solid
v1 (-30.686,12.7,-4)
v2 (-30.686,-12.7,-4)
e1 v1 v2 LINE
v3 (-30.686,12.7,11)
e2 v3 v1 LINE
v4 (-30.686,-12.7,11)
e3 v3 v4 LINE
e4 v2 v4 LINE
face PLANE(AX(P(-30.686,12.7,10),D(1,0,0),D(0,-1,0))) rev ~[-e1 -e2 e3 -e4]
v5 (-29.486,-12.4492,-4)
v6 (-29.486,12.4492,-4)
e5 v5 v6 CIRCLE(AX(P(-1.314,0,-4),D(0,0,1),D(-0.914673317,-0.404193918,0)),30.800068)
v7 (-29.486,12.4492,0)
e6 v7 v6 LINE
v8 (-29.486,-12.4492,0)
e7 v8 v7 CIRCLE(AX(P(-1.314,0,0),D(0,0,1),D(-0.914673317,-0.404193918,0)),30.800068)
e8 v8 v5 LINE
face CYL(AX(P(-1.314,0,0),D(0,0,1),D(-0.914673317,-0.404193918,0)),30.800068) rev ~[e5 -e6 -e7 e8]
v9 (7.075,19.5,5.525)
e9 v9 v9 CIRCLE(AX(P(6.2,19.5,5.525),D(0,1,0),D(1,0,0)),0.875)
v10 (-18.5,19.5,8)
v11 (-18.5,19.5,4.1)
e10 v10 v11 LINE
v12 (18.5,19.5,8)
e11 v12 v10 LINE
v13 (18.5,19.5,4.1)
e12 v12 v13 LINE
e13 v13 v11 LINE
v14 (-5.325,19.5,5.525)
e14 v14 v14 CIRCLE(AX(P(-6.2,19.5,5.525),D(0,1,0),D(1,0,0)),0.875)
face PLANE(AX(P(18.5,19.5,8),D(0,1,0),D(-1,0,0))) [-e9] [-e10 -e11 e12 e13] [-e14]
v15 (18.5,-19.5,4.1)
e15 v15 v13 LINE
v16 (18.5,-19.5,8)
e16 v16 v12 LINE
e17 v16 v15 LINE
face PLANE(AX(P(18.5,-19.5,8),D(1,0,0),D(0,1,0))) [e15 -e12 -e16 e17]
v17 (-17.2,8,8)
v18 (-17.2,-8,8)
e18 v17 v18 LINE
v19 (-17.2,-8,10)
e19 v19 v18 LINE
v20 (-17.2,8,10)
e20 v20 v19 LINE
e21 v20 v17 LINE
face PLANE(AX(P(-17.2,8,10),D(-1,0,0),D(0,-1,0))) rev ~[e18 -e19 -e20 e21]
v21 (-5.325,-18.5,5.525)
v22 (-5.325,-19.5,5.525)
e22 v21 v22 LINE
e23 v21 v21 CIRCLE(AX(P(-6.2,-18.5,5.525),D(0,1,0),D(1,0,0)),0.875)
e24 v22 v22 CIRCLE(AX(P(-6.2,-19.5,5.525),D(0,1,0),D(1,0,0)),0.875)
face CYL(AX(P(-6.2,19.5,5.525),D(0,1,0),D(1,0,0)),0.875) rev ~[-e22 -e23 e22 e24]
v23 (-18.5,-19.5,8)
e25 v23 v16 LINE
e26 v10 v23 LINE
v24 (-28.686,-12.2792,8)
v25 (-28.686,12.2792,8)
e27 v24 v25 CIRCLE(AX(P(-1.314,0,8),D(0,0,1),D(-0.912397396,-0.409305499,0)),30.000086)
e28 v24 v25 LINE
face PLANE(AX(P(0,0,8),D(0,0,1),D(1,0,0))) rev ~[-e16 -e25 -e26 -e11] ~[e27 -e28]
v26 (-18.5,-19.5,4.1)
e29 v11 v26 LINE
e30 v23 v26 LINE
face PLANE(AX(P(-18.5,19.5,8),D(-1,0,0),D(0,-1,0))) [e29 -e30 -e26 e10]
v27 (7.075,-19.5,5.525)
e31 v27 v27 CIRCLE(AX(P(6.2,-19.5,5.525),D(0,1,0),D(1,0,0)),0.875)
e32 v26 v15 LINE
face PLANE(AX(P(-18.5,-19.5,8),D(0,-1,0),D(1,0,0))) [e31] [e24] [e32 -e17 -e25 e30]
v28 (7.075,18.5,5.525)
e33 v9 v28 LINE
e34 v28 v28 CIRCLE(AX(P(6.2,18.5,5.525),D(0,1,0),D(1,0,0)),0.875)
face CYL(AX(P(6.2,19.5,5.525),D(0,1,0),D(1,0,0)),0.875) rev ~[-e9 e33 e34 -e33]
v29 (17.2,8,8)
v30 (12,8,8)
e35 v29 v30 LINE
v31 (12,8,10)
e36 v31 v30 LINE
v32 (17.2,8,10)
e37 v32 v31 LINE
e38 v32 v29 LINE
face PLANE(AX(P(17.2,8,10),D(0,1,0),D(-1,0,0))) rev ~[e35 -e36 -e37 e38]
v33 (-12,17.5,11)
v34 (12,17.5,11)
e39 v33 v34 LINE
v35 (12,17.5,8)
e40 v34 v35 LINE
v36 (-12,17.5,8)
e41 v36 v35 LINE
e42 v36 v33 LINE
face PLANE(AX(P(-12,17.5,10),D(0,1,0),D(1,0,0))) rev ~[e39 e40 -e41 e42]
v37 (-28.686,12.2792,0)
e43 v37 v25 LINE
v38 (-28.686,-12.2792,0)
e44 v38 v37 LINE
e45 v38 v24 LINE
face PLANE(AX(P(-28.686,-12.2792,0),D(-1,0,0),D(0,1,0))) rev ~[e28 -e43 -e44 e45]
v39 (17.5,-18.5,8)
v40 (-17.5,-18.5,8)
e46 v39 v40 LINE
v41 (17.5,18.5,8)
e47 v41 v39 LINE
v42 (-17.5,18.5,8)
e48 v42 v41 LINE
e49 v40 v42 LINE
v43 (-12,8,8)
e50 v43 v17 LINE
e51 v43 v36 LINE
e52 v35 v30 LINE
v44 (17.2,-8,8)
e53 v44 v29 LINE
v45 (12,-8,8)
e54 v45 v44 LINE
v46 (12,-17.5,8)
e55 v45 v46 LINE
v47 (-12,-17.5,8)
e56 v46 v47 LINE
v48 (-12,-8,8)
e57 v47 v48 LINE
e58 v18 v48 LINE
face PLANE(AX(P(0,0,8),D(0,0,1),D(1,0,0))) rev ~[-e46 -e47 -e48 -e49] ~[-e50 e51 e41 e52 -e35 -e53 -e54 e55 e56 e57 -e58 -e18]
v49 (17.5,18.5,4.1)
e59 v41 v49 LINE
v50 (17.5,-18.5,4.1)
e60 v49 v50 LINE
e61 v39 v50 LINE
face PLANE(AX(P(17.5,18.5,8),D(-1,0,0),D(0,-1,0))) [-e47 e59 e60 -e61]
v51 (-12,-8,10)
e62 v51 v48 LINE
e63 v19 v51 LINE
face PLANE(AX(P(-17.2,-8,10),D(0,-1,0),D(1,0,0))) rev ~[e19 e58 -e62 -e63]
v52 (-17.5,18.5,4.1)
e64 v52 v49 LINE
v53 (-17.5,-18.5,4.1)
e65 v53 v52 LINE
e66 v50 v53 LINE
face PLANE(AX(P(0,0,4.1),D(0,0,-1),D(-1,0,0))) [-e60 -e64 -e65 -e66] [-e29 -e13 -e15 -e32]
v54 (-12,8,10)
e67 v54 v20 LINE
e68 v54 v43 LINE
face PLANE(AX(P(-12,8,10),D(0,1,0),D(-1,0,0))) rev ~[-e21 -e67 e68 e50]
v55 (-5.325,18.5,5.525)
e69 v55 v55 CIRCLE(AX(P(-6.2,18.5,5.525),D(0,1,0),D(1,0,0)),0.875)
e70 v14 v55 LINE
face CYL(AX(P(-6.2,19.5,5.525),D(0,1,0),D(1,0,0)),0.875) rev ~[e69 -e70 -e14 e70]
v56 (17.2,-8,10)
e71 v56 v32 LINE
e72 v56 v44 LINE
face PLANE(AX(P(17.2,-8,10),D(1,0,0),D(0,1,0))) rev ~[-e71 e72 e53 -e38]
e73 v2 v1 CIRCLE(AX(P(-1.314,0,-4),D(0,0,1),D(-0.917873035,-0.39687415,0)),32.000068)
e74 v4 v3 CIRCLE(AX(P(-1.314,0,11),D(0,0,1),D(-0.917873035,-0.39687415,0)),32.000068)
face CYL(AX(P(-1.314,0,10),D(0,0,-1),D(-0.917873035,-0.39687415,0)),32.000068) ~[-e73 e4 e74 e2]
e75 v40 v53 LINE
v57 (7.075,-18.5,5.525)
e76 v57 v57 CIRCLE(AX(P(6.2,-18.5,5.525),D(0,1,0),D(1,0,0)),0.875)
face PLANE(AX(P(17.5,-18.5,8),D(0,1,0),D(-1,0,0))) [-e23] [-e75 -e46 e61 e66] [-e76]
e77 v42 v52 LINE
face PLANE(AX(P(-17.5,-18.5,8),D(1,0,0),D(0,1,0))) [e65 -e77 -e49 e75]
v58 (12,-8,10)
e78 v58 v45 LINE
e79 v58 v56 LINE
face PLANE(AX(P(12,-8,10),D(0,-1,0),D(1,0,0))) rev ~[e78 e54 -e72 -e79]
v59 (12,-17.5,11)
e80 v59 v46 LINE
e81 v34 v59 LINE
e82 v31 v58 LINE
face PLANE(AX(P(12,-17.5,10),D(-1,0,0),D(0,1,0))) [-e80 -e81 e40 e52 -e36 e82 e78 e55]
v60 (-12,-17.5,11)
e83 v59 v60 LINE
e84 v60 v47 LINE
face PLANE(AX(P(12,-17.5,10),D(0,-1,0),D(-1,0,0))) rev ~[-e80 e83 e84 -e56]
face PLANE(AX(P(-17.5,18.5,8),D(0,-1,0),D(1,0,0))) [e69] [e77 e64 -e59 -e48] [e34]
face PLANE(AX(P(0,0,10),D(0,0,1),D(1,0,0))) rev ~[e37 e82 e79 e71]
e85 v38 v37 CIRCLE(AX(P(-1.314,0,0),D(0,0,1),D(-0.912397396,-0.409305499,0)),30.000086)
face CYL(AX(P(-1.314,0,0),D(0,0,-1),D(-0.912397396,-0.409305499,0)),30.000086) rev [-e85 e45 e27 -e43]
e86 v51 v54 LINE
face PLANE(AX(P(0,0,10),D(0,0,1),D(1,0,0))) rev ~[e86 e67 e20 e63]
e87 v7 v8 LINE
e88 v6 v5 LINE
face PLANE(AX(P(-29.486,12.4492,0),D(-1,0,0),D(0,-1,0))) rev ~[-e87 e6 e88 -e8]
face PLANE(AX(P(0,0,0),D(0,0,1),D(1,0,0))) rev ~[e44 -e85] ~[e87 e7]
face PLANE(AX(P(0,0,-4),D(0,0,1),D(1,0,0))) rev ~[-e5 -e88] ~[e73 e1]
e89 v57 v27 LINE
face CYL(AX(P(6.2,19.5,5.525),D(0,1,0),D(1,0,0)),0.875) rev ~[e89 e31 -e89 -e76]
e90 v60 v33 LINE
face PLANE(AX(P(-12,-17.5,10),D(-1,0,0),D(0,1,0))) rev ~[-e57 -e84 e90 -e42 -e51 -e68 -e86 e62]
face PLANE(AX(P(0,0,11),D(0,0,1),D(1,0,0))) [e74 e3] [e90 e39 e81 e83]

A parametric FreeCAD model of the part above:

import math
import FreeCAD as App
import Part
import Sketcher
from FreeCAD import Vector

doc = App.newDocument("Part")
body = doc.addObject("PartDesign::Body", "Body")

# Sketch on XY plane
sketch1 = body.newObject("Sketcher::SketchObject", "Sketch")
sketch1.AttachmentSupport = (doc.getObject("XY_Plane"), [""])
sketch1.MapMode = "FlatFace"
sketch1.addGeometry([
    Part.LineSegment(Vector(-31, 13, 0), Vector(-31, -13, 0)),
    Part.ArcOfCircle(Part.Circle(Vector(-1, 0, 0), Vector(0, 0, 1), 32), math.radians(-157), math.radians(157)),
    Part.LineSegment(Vector(-29, -12, 0), Vector(-29, 12, 0)),
    Part.ArcOfCircle(Part.Circle(Vector(-1, 0, 0), Vector(0, 0, 1), 31), math.radians(-156), math.radians(156)),
], False)
sketch1.addConstraint([
    Sketcher.Constraint("Coincident", 0, 1, 1, 2),
    Sketcher.Constraint("Coincident", 1, 1, 0, 2),
    Sketcher.Constraint("Coincident", 2, 1, 3, 1),
    Sketcher.Constraint("Coincident", 3, 2, 2, 2),
    Sketcher.Constraint("Vertical", 0),
    Sketcher.Constraint("Vertical", 2),
    Sketcher.Constraint("Coincident", 3, 3, 1, 3),
    Sketcher.Constraint("PointOnObject", 1, 3, -1),
    Sketcher.Constraint("Radius", 1, 32.0),
    Sketcher.Constraint("Radius", 3, 30.8),
    Sketcher.Constraint("DistanceY", 0, 2, 0, 1, 25.4),
    Sketcher.Constraint("DistanceX", 1, 1, 2, 1, 1.2),
    Sketcher.Constraint("DistanceX", 1, 3, -1, 1, 1.314),
])
pad1 = body.newObject("PartDesign::Pad", "Pad")
pad1.Profile = sketch1
pad1.Length = 4
pad1.Reversed = True

# Sketch on XY plane
sketch2 = body.newObject("Sketcher::SketchObject", "Sketch001")
sketch2.AttachmentSupport = (doc.getObject("XY_Plane"), [""])
sketch2.MapMode = "FlatFace"
sketch2.addGeometry([
    Part.ArcOfCircle(Part.Circle(Vector(-1, 0, 0), Vector(0, 0, 1), 32), math.radians(-157), math.radians(157)),
    Part.LineSegment(Vector(-31, 13, 0), Vector(-31, -13, 0)),
    Part.ArcOfCircle(Part.Circle(Vector(-1, 0, 0), Vector(0, 0, 1), 30), math.radians(-156), math.radians(156)),
    Part.LineSegment(Vector(-29, -12, 0), Vector(-29, 12, 0)),
], False)
sketch2.addConstraint([
    Sketcher.Constraint("Coincident", 0, 1, 1, 2),
    Sketcher.Constraint("Coincident", 1, 1, 0, 2),
    Sketcher.Constraint("Coincident", 2, 1, 3, 1),
    Sketcher.Constraint("Coincident", 3, 2, 2, 2),
    Sketcher.Constraint("Vertical", 1),
    Sketcher.Constraint("Vertical", 3),
    Sketcher.Constraint("Coincident", 2, 3, 0, 3),
    Sketcher.Constraint("PointOnObject", 0, 3, -1),
    Sketcher.Constraint("Radius", 0, 32.0),
    Sketcher.Constraint("Radius", 2, 30.0),
    Sketcher.Constraint("DistanceY", 1, 2, 1, 1, 25.4),
    Sketcher.Constraint("DistanceX", 0, 1, 2, 1, 2.0),
    Sketcher.Constraint("DistanceX", 0, 3, -1, 1, 1.314),
])
pad2 = body.newObject("PartDesign::Pad", "Pad001")
pad2.Profile = sketch2
pad2.Length = 8

# Sketch on XY plane
sketch3 = body.newObject("Sketcher::SketchObject", "Sketch002")
sketch3.AttachmentSupport = (doc.getObject("XY_Plane"), [""])
sketch3.MapMode = "FlatFace"
sketch3.AttachmentOffset = App.Placement(Vector(0, 0, 8), App.Rotation())
sketch3.addGeometry([
    Part.LineSegment(Vector(-31, 13, 0), Vector(-31, -13, 0)),
    Part.ArcOfCircle(Part.Circle(Vector(-1, 0, 0), Vector(0, 0, 1), 32), math.radians(-157), math.radians(157)),
], False)
sketch3.addConstraint([
    Sketcher.Constraint("Coincident", 0, 1, 1, 2),
    Sketcher.Constraint("Coincident", 1, 1, 0, 2),
    Sketcher.Constraint("Vertical", 0),
    Sketcher.Constraint("PointOnObject", 1, 3, -1),
    Sketcher.Constraint("Radius", 1, 32.0),
    Sketcher.Constraint("DistanceY", 0, 2, 0, 1, 25.4),
    Sketcher.Constraint("DistanceX", 1, 3, -1, 1, 1.314),
])
pad3 = body.newObject("PartDesign::Pad", "Pad002")
pad3.Profile = sketch3
pad3.Length = 2

# Sketch on XY plane
sketch4 = body.newObject("Sketcher::SketchObject", "Sketch003")
sketch4.AttachmentSupport = (doc.getObject("XY_Plane"), [""])
sketch4.MapMode = "FlatFace"
sketch4.AttachmentOffset = App.Placement(Vector(0, 0, 10), App.Rotation())
sketch4.addGeometry([
    Part.LineSegment(Vector(-12, -18, 0), Vector(12, -18, 0)),  # 0
    Part.LineSegment(Vector(12, -18, 0), Vector(12, -8, 0)),  # 1
    Part.LineSegment(Vector(12, -8, 0), Vector(17, -8, 0)),  # 2
    Part.LineSegment(Vector(17, -8, 0), Vector(17, 8, 0)),  # 3
    Part.LineSegment(Vector(17, 8, 0), Vector(12, 8, 0)),  # 4
    Part.LineSegment(Vector(12, 8, 0), Vector(12, 18, 0)),  # 5
    Part.LineSegment(Vector(12, 18, 0), Vector(-12, 18, 0)),  # 6
    Part.LineSegment(Vector(-12, 18, 0), Vector(-12, 8, 0)),  # 7
    Part.LineSegment(Vector(-12, 8, 0), Vector(-17, 8, 0)),  # 8
    Part.LineSegment(Vector(-17, 8, 0), Vector(-17, -8, 0)),  # 9
    Part.LineSegment(Vector(-17, -8, 0), Vector(-12, -8, 0)),  # 10
    Part.LineSegment(Vector(-12, -8, 0), Vector(-12, -18, 0)),  # 11
], False)
sketch4.addConstraint([
    Sketcher.Constraint("Coincident", 0, 2, 1, 1),
    Sketcher.Constraint("Coincident", 1, 2, 2, 1),
    Sketcher.Constraint("Coincident", 2, 2, 3, 1),
    Sketcher.Constraint("Coincident", 3, 2, 4, 1),
    Sketcher.Constraint("Coincident", 4, 2, 5, 1),
    Sketcher.Constraint("Coincident", 5, 2, 6, 1),
    Sketcher.Constraint("Coincident", 6, 2, 7, 1),
    Sketcher.Constraint("Coincident", 7, 2, 8, 1),
    Sketcher.Constraint("Coincident", 8, 2, 9, 1),
    Sketcher.Constraint("Coincident", 9, 2, 10, 1),
    Sketcher.Constraint("Coincident", 10, 2, 11, 1),
    Sketcher.Constraint("Coincident", 11, 2, 0, 1),
    Sketcher.Constraint("Horizontal", 0),
    Sketcher.Constraint("Vertical", 1),
    Sketcher.Constraint("Horizontal", 2),
    Sketcher.Constraint("Vertical", 3),
    Sketcher.Constraint("Horizontal", 4),
    Sketcher.Constraint("Vertical", 5),
    Sketcher.Constraint("Horizontal", 6),
    Sketcher.Constraint("Vertical", 7),
    Sketcher.Constraint("Horizontal", 8),
    Sketcher.Constraint("Vertical", 9),
    Sketcher.Constraint("Horizontal", 10),
    Sketcher.Constraint("Vertical", 11),
    Sketcher.Constraint("Symmetric", 0, 2, 6, 2, -1, 1),
    Sketcher.Constraint("Symmetric", 2, 2, 8, 2, -1, 1),
    Sketcher.Constraint("Symmetric", 4, 2, 10, 2, -1, 1),
    Sketcher.Constraint("Symmetric", 4, 2, 7, 2, -2),
    Sketcher.Constraint("DistanceX", 0, 1, 0, 2, 24.0),
    Sketcher.Constraint("DistanceY", 3, 1, 3, 2, 16.0),
    Sketcher.Constraint("DistanceX", 2, 1, 2, 2, 5.2),
    Sketcher.Constraint("DistanceY", 1, 1, 1, 2, 9.5),
])
pocket1 = body.newObject("PartDesign::Pocket", "Pocket")
pocket1.Profile = sketch4
pocket1.Length = 2

# Sketch on XY plane
sketch5 = body.newObject("Sketcher::SketchObject", "Sketch004")
sketch5.AttachmentSupport = (doc.getObject("XY_Plane"), [""])
sketch5.MapMode = "FlatFace"
sketch5.AttachmentOffset = App.Placement(Vector(0, 0, 8), App.Rotation())
sketch5.addGeometry([
    Part.LineSegment(Vector(18, -20, 0), Vector(-18, -20, 0)),  # 0
    Part.LineSegment(Vector(-18, -20, 0), Vector(-18, 20, 0)),  # 1
    Part.LineSegment(Vector(-18, 20, 0), Vector(18, 20, 0)),  # 2
    Part.LineSegment(Vector(18, 20, 0), Vector(18, -20, 0)),  # 3
    Part.LineSegment(Vector(-18, -18, 0), Vector(18, -18, 0)),  # 4
    Part.LineSegment(Vector(18, -18, 0), Vector(18, 18, 0)),  # 5
    Part.LineSegment(Vector(18, 18, 0), Vector(-18, 18, 0)),  # 6
    Part.LineSegment(Vector(-18, 18, 0), Vector(-18, -18, 0)),  # 7
], False)
sketch5.addConstraint([
    Sketcher.Constraint("Coincident", 0, 2, 1, 1),
    Sketcher.Constraint("Coincident", 1, 2, 2, 1),
    Sketcher.Constraint("Coincident", 2, 2, 3, 1),
    Sketcher.Constraint("Coincident", 3, 2, 0, 1),
    Sketcher.Constraint("Coincident", 4, 2, 5, 1),
    Sketcher.Constraint("Coincident", 5, 2, 6, 1),
    Sketcher.Constraint("Coincident", 6, 2, 7, 1),
    Sketcher.Constraint("Coincident", 7, 2, 4, 1),
    Sketcher.Constraint("Horizontal", 0),
    Sketcher.Constraint("Vertical", 1),
    Sketcher.Constraint("Horizontal", 2),
    Sketcher.Constraint("Vertical", 3),
    Sketcher.Constraint("Horizontal", 4),
    Sketcher.Constraint("Vertical", 5),
    Sketcher.Constraint("Horizontal", 6),
    Sketcher.Constraint("Vertical", 7),
    Sketcher.Constraint("Symmetric", 0, 2, 2, 2, -1, 1),
    Sketcher.Constraint("Symmetric", 4, 2, 6, 2, -1, 1),
    Sketcher.Constraint("Equal", 2, 5),
    Sketcher.Constraint("DistanceX", 4, 2, 3, 2, 1.0),
    Sketcher.Constraint("DistanceY", 3, 2, 4, 2, 1.0),
    Sketcher.Constraint("DistanceX", 0, 2, 0, 1, 37.0),
])
pad4 = body.newObject("PartDesign::Pad", "Pad003")
pad4.Profile = sketch5
pad4.Length = 3.9
pad4.Reversed = True

# Sketch on XZ plane
sketch6 = body.newObject("Sketcher::SketchObject", "Sketch005")
sketch6.AttachmentSupport = (doc.getObject("XZ_Plane"), [""])
sketch6.MapMode = "FlatFace"
sketch6.AttachmentOffset = App.Placement(Vector(0, 0, -19.5), App.Rotation())
sketch6.addGeometry([
    Part.Circle(Vector(6.2, 5.5, 0), Vector(0, 0, 1), 0.9),
    Part.Circle(Vector(-6.2, 5.5, 0), Vector(0, 0, 1), 0.9),
], False)
sketch6.addConstraint([
    Sketcher.Constraint("Equal", 0, 1),
    Sketcher.Constraint("Symmetric", 0, 3, 1, 3, -2),
    Sketcher.Constraint("Diameter", 0, 1.75),
    Sketcher.Constraint("DistanceX", -1, 1, 0, 3, 6.2),
    Sketcher.Constraint("DistanceY", -1, 1, 0, 3, 5.525),
])
pocket2 = body.newObject("PartDesign::Pocket", "Pocket001")
pocket2.Profile = sketch6
pocket2.Length = 40
pocket2.Reversed = True

# Sketch on XY plane
sketch7 = body.newObject("Sketcher::SketchObject", "Sketch006")
sketch7.AttachmentSupport = (doc.getObject("XY_Plane"), [""])
sketch7.MapMode = "FlatFace"
sketch7.AttachmentOffset = App.Placement(Vector(0, 0, 10), App.Rotation())
sketch7.addGeometry([
    Part.LineSegment(Vector(-31, 13, 0), Vector(-31, -13, 0)),  # 0
    Part.ArcOfCircle(Part.Circle(Vector(-1, 0, 0), Vector(0, 0, 1), 32), math.radians(-157), math.radians(157)),  # 1
    Part.LineSegment(Vector(-12, -18, 0), Vector(-12, 18, 0)),  # 2
    Part.LineSegment(Vector(-12, 18, 0), Vector(12, 18, 0)),  # 3
    Part.LineSegment(Vector(12, 18, 0), Vector(12, -18, 0)),  # 4
    Part.LineSegment(Vector(12, -18, 0), Vector(-12, -18, 0)),  # 5
], False)
sketch7.addConstraint([
    Sketcher.Constraint("Coincident", 0, 1, 1, 2),
    Sketcher.Constraint("Coincident", 1, 1, 0, 2),
    Sketcher.Constraint("Coincident", 2, 2, 3, 1),
    Sketcher.Constraint("Coincident", 3, 2, 4, 1),
    Sketcher.Constraint("Coincident", 4, 2, 5, 1),
    Sketcher.Constraint("Coincident", 5, 2, 2, 1),
    Sketcher.Constraint("Vertical", 0),
    Sketcher.Constraint("Vertical", 2),
    Sketcher.Constraint("Horizontal", 3),
    Sketcher.Constraint("Vertical", 4),
    Sketcher.Constraint("Horizontal", 5),
    Sketcher.Constraint("Symmetric", 2, 2, 4, 2, -1, 1),
    Sketcher.Constraint("PointOnObject", 1, 3, -1),
    Sketcher.Constraint("Radius", 1, 32.0),
    Sketcher.Constraint("DistanceX", 3, 1, 3, 2, 24.0),
    Sketcher.Constraint("DistanceY", 2, 1, 2, 2, 35.0),
    Sketcher.Constraint("DistanceY", 0, 2, 0, 1, 25.4),
    Sketcher.Constraint("DistanceX", 1, 3, -1, 1, 1.314),
])
pad5 = body.newObject("PartDesign::Pad", "Pad004")
pad5.Profile = sketch7
pad5.Length = 1

doc.recompute()
